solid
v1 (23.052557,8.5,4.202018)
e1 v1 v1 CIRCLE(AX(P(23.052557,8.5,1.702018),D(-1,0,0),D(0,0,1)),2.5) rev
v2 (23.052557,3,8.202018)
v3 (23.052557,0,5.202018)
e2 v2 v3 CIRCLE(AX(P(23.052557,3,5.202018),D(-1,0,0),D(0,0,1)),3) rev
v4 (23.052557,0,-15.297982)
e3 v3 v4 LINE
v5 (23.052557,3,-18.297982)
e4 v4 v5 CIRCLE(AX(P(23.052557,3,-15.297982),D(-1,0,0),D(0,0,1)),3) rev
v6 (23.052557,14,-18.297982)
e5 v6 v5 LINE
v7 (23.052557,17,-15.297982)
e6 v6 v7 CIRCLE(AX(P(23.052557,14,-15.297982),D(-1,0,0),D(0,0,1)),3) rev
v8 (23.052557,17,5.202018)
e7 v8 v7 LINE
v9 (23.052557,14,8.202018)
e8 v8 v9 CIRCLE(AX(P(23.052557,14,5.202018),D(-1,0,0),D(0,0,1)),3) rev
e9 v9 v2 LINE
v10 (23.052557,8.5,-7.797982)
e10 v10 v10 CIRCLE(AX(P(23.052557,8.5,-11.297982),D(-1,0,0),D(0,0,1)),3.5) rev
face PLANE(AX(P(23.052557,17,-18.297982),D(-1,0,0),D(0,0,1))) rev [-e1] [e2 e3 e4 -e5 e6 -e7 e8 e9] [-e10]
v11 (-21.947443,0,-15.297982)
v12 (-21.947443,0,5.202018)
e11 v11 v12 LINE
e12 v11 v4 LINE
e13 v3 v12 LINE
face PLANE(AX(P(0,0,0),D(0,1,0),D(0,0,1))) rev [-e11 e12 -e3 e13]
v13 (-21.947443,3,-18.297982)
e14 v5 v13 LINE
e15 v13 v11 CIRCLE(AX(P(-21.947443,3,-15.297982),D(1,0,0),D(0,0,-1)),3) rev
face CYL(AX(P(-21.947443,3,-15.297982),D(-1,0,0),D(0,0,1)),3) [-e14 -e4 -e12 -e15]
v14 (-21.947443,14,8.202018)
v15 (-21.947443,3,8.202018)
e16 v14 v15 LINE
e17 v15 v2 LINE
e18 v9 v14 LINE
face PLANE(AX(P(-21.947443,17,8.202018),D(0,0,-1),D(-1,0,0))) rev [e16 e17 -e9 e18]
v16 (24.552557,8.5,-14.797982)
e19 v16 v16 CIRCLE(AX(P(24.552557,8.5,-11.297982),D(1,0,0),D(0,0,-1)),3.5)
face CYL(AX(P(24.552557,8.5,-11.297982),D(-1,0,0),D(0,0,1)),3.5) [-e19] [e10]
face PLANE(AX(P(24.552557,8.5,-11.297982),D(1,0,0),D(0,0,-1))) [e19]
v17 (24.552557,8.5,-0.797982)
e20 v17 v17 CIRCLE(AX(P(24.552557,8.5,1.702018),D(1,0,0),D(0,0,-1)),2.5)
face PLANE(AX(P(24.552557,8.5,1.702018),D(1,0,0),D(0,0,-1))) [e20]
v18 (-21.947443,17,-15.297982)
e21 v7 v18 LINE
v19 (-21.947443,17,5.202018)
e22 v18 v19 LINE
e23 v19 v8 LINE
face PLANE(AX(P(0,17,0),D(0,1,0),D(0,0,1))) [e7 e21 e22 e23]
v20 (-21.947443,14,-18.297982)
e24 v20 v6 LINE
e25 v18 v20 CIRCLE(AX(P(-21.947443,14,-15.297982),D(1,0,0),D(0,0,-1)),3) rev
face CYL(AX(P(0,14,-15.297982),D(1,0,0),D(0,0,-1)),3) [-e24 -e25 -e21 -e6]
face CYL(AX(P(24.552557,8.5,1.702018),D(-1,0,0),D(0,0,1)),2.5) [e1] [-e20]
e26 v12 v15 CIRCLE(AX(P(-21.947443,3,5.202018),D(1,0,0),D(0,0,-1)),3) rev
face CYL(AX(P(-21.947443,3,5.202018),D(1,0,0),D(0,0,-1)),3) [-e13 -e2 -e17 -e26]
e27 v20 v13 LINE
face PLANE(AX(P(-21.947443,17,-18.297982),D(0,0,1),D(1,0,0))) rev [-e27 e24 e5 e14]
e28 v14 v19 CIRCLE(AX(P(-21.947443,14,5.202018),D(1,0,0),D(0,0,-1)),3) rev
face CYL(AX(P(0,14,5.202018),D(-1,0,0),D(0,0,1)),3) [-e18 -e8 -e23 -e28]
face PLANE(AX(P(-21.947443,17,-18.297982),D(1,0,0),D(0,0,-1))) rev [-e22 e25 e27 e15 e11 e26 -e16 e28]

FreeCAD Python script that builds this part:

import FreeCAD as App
import Part
import Sketcher


def edges_at(feature, points):
    """Names of the edges that pass closest to the given points."""
    edges = feature.Shape.Edges
    near = lambda p: min(range(len(edges)), key=lambda i: edges[i].distToShape(Part.Vertex(*p))[0])
    return sorted({f"Edge{near(p) + 1}" for p in points})


def add_polygon(sketch, points):
    """Adds a closed chain of lines whose ends are joined by coincident constraints."""
    first, n = sketch.GeometryCount, len(points)
    for a, b in zip(points, points[1:] + points[:1]):
        sketch.addGeometry(Part.LineSegment(App.Vector(*a, 0), App.Vector(*b, 0)), False)
    for i in range(n):
        sketch.addConstraint(Sketcher.Constraint("Coincident", first + i, 2, first + (i + 1) % n, 1))

doc = App.newDocument("Part")
params = doc.addObject("Spreadsheet::Sheet", "Params")
for row, (alias, value) in enumerate([
    ("sketch1_width", "45 mm"),
    ("sketch1_height", "26.5 mm"),
    ("pad1_length", "17 mm"),
    ("fillet_radius", "3 mm"),
    ("sketch2_diameter", "7 mm"),
    ("sketch2_diameter2", "5 mm"),
    ("pad2_length", "1.5 mm"),
], start=1):
    params.set(f"A{row}", alias)
    params.set(f"B{row}", "=" + value)
    params.setAlias(f"B{row}", alias)

body = doc.addObject("PartDesign::Body", "Body")

# Sketch on XZ plane
sketch1 = body.newObject("Sketcher::SketchObject", "Sketch")
sketch1.AttachmentSupport = (doc.getObject("XZ_Plane"), [""])
sketch1.MapMode = "FlatFace"
add_polygon(sketch1, [(-22, -18), (-22, 8), (23, 8), (23, -18)])  # lines 0-3
sketch1.addConstraint(Sketcher.Constraint("Vertical", 0))
sketch1.addConstraint(Sketcher.Constraint("Horizontal", 1))
sketch1.addConstraint(Sketcher.Constraint("Vertical", 2))
sketch1.addConstraint(Sketcher.Constraint("Horizontal", 3))
sketch1.addConstraint(Sketcher.Constraint("DistanceX", 1, 1, 1, 2, 45.0))
sketch1.addConstraint(Sketcher.Constraint("DistanceY", 0, 1, 0, 2, 26.5))
sketch1.addConstraint(Sketcher.Constraint("DistanceY", -1, 1, 0, 2, 8.202018))
sketch1.addConstraint(Sketcher.Constraint("DistanceX", 0, 2, -1, 1, 21.947443))
sketch1.setExpression("Constraints[8]", "Params.sketch1_width")
sketch1.setExpression("Constraints[9]", "Params.sketch1_height")
pad1 = body.newObject("PartDesign::Pad", "Pad")
pad1.Profile = sketch1
pad1.setExpression("Length", "Params.pad1_length")
pad1.Reversed = True
doc.recompute()

fillet = body.newObject("PartDesign::Fillet", "Fillet")
fillet.Base = (pad1, edges_at(pad1, [
    (0.553, 17, -18.298),
    (0.553, 0, -18.298),
    (0.553, 0, 8.202),
    (0.553, 17, 8.202),
]))
fillet.setExpression("Radius", "Params.fillet_radius")

# Sketch on YZ plane
sketch2 = body.newObject("Sketcher::SketchObject", "Sketch001")
sketch2.AttachmentSupport = (doc.getObject("YZ_Plane"), [""])
sketch2.MapMode = "FlatFace"
sketch2.AttachmentOffset = App.Placement(App.Vector(0, 0, 23.052557), App.Rotation())
sketch2.addGeometry(Part.Circle(App.Vector(8.5, -11.3, 0), App.Vector(0, 0, 1), 3.5), False)
sketch2.addGeometry(Part.Circle(App.Vector(8.5, 1.7, 0), App.Vector(0, 0, 1), 2.5), False)
sketch2.addConstraint(Sketcher.Constraint("Vertical", 0, 3, 1, 3))
sketch2.addConstraint(Sketcher.Constraint("Diameter", 0, 7.0))
sketch2.addConstraint(Sketcher.Constraint("Diameter", 1, 5.0))
sketch2.addConstraint(Sketcher.Constraint("DistanceY", 0, 3, 1, 3, 13.0))
sketch2.addConstraint(Sketcher.Constraint("DistanceX", -1, 1, 0, 3, 8.5))
sketch2.addConstraint(Sketcher.Constraint("DistanceY", 0, 3, -1, 1, 11.297982))
sketch2.setExpression("Constraints[1]", "Params.sketch2_diameter")
sketch2.setExpression("Constraints[2]", "Params.sketch2_diameter2")
pad2 = body.newObject("PartDesign::Pad", "Pad001")
pad2.Profile = sketch2
pad2.setExpression("Length", "Params.pad2_length")

doc.recompute()
